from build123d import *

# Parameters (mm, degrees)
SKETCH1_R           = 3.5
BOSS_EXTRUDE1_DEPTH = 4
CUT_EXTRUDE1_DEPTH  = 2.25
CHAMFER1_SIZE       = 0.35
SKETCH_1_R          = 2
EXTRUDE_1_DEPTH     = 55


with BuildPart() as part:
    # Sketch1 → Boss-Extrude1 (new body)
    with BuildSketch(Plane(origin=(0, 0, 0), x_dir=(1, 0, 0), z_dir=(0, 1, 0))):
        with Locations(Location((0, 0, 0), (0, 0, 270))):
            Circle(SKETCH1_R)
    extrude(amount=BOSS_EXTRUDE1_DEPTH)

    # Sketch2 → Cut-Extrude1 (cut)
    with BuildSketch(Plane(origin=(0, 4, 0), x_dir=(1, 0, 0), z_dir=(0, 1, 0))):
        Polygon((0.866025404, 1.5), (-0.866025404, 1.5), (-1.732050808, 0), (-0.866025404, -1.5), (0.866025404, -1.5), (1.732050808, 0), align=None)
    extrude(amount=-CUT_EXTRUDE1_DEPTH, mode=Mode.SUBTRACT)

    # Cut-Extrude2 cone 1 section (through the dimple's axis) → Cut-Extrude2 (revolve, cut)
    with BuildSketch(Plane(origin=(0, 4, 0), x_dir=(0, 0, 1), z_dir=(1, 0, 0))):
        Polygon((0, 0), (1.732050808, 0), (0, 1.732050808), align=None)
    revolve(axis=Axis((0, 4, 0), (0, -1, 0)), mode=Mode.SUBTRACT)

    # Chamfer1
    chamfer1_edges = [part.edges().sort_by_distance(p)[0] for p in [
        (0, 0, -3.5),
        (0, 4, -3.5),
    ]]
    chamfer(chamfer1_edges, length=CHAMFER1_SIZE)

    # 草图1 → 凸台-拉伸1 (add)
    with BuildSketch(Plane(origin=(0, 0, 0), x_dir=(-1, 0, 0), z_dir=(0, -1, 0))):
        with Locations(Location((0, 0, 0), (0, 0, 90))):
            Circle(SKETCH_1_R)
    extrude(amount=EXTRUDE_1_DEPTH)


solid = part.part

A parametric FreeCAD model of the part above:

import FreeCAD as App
import Part
import Sketcher
Q = App.Units.Quantity


def edges_at(feature, points):
    """Names of the edges that pass closest to the given points."""
    edges = feature.Shape.Edges
    near = lambda p: min(range(len(edges)), key=lambda i: edges[i].distToShape(Part.Vertex(*p))[0])
    return sorted({f"Edge{near(p) + 1}" for p in points})

doc = App.newDocument("Part")
params = doc.addObject("Spreadsheet::Sheet", "Params")
for row, (alias, value) in enumerate([
    ("sketch1_diameter", "7 mm"),
    ("pad1_length", "4 mm"),
    ("pocket1_length", "2.25 mm"),
    ("groove_angle", "360 deg"),
    ("chamfer_size", "0.35 mm"),
    ("sketch4_diameter", "4 mm"),
    ("pad2_length", "55 mm"),
], start=1):
    params.set(f"A{row}", alias)
    params.set(f"B{row}", "=" + value)
    params.setAlias(f"B{row}", alias)

body = doc.addObject("PartDesign::Body", "Body")

sketch1 = body.newObject("Sketcher::SketchObject", "Sketch")
sketch1.AttachmentSupport = (doc.getObject("XZ_Plane"), [""])
sketch1.MapMode = "FlatFace"
sketch1.addGeometry(Part.Circle(App.Vector(0, 0, 0), App.Vector(0, 0, 1), 3.5), False)
sketch1.addConstraint(Sketcher.Constraint("Coincident", 0, 3, -1, 1))
sketch1.addConstraint(Sketcher.Constraint("Diameter", 0, 7.0))
sketch1.setExpression("Constraints[1]", "Params.sketch1_diameter")
pad1 = body.newObject("PartDesign::Pad", "Pad")
pad1.Profile = sketch1
pad1.setExpression("Length", "Params.pad1_length")
pad1.Reversed = True

sketch2 = body.newObject("Sketcher::SketchObject", "Sketch001")
sketch2.AttachmentSupport = (doc.getObject("XZ_Plane"), [""])
sketch2.MapMode = "FlatFace"
sketch2.AttachmentOffset = App.Placement(App.Vector(0, 0, -4), App.Rotation())
sketch2.addGeometry(Part.LineSegment(App.Vector(0.866025, -1.5, 0), App.Vector(-0.866025, -1.5, 0)), False)
sketch2.addGeometry(Part.LineSegment(App.Vector(-0.866025, -1.5, 0), App.Vector(-1.732051, 0, 0)), False)
sketch2.addGeometry(Part.LineSegment(App.Vector(-1.732051, 0, 0), App.Vector(-0.866025, 1.5, 0)), False)
sketch2.addGeometry(Part.LineSegment(App.Vector(-0.866025, 1.5, 0), App.Vector(0.866025, 1.5, 0)), False)
sketch2.addGeometry(Part.LineSegment(App.Vector(0.866025, 1.5, 0), App.Vector(1.732051, 0, 0)), False)
sketch2.addGeometry(Part.LineSegment(App.Vector(1.732051, 0, 0), App.Vector(0.866025, -1.5, 0)), False)
sketch2.addConstraint(Sketcher.Constraint("Coincident", 0, 2, 1, 1))
sketch2.addConstraint(Sketcher.Constraint("Coincident", 1, 2, 2, 1))
sketch2.addConstraint(Sketcher.Constraint("Coincident", 2, 2, 3, 1))
sketch2.addConstraint(Sketcher.Constraint("Coincident", 3, 2, 4, 1))
sketch2.addConstraint(Sketcher.Constraint("Coincident", 4, 2, 5, 1))
sketch2.addConstraint(Sketcher.Constraint("Coincident", 5, 2, 0, 1))
sketch2.addConstraint(Sketcher.Constraint("Horizontal", 0))
sketch2.addConstraint(Sketcher.Constraint("Horizontal", 3))
sketch2.addConstraint(Sketcher.Constraint("Symmetric", 0, 2, 3, 2, -1, 1))
sketch2.addConstraint(Sketcher.Constraint("Symmetric", 1, 2, 4, 2, -1, 1))
sketch2.addConstraint(Sketcher.Constraint("PointOnObject", 1, 2, -1))
sketch2.addConstraint(Sketcher.Constraint("Parallel", 2, 5))
sketch2.addConstraint(Sketcher.Constraint("Vertical", 0, 2, 2, 2))
sketch2.addConstraint(Sketcher.Constraint("Angle", 1, Q("120 deg")))
sketch2.addConstraint(Sketcher.Constraint("DistanceY", 0, 2, 2, 2, 3.0))
sketch2.addConstraint(Sketcher.Constraint("DistanceX", 0, 2, 0, 1, 1.732051))
pocket1 = body.newObject("PartDesign::Pocket", "Pocket")
pocket1.Profile = sketch2
pocket1.setExpression("Length", "Params.pocket1_length")
pocket1.Reversed = True

sketch3 = body.newObject("Sketcher::SketchObject", "Sketch002")
sketch3.AttachmentSupport = (doc.getObject("YZ_Plane"), [""])
sketch3.MapMode = "FlatFace"
sketch3.addGeometry(Part.LineSegment(App.Vector(4, 0, 0), App.Vector(4, 1.732051, 0)), False)
sketch3.addGeometry(Part.LineSegment(App.Vector(4, 1.732051, 0), App.Vector(2.267949, 0, 0)), False)
sketch3.addGeometry(Part.LineSegment(App.Vector(2.267949, 0, 0), App.Vector(4, 0, 0)), False)
sketch3.addConstraint(Sketcher.Constraint("Coincident", 0, 2, 1, 1))
sketch3.addConstraint(Sketcher.Constraint("Coincident", 1, 2, 2, 1))
sketch3.addConstraint(Sketcher.Constraint("Coincident", 2, 2, 0, 1))
sketch3.addConstraint(Sketcher.Constraint("Vertical", 0))
sketch3.addConstraint(Sketcher.Constraint("Horizontal", 2))
sketch3.addConstraint(Sketcher.Constraint("PointOnObject", 1, 2, -1))
sketch3.addConstraint(Sketcher.Constraint("Equal", 2, 0))
sketch3.addConstraint(Sketcher.Constraint("DistanceX", -1, 1, 0, 2, 4.0))
sketch3.addConstraint(Sketcher.Constraint("DistanceX", 2, 1, 2, 2, 1.732051))
groove = body.newObject("PartDesign::Groove", "Groove")
groove.Profile = sketch3
groove.ReferenceAxis = (sketch3, ["H_Axis"])
groove.setExpression("Angle", "Params.groove_angle")
doc.recompute()

chamfer = body.newObject("PartDesign::Chamfer", "Chamfer")
chamfer.Base = (groove, edges_at(groove, [(0, 0, -3.5), (0, 4, -3.5)]))
chamfer.setExpression("Size", "Params.chamfer_size")

sketch4 = body.newObject("Sketcher::SketchObject", "Sketch003")
sketch4.AttachmentSupport = (doc.getObject("XZ_Plane"), [""])
sketch4.MapMode = "FlatFace"
sketch4.addGeometry(Part.Circle(App.Vector(0, 0, 0), App.Vector(0, 0, 1), 2), False)
sketch4.addConstraint(Sketcher.Constraint("Coincident", 0, 3, -1, 1))
sketch4.addConstraint(Sketcher.Constraint("Diameter", 0, 4.0))
sketch4.setExpression("Constraints[1]", "Params.sketch4_diameter")
pad2 = body.newObject("PartDesign::Pad", "Pad001")
pad2.Profile = sketch4
pad2.setExpression("Length", "Params.pad2_length")

doc.recompute()
